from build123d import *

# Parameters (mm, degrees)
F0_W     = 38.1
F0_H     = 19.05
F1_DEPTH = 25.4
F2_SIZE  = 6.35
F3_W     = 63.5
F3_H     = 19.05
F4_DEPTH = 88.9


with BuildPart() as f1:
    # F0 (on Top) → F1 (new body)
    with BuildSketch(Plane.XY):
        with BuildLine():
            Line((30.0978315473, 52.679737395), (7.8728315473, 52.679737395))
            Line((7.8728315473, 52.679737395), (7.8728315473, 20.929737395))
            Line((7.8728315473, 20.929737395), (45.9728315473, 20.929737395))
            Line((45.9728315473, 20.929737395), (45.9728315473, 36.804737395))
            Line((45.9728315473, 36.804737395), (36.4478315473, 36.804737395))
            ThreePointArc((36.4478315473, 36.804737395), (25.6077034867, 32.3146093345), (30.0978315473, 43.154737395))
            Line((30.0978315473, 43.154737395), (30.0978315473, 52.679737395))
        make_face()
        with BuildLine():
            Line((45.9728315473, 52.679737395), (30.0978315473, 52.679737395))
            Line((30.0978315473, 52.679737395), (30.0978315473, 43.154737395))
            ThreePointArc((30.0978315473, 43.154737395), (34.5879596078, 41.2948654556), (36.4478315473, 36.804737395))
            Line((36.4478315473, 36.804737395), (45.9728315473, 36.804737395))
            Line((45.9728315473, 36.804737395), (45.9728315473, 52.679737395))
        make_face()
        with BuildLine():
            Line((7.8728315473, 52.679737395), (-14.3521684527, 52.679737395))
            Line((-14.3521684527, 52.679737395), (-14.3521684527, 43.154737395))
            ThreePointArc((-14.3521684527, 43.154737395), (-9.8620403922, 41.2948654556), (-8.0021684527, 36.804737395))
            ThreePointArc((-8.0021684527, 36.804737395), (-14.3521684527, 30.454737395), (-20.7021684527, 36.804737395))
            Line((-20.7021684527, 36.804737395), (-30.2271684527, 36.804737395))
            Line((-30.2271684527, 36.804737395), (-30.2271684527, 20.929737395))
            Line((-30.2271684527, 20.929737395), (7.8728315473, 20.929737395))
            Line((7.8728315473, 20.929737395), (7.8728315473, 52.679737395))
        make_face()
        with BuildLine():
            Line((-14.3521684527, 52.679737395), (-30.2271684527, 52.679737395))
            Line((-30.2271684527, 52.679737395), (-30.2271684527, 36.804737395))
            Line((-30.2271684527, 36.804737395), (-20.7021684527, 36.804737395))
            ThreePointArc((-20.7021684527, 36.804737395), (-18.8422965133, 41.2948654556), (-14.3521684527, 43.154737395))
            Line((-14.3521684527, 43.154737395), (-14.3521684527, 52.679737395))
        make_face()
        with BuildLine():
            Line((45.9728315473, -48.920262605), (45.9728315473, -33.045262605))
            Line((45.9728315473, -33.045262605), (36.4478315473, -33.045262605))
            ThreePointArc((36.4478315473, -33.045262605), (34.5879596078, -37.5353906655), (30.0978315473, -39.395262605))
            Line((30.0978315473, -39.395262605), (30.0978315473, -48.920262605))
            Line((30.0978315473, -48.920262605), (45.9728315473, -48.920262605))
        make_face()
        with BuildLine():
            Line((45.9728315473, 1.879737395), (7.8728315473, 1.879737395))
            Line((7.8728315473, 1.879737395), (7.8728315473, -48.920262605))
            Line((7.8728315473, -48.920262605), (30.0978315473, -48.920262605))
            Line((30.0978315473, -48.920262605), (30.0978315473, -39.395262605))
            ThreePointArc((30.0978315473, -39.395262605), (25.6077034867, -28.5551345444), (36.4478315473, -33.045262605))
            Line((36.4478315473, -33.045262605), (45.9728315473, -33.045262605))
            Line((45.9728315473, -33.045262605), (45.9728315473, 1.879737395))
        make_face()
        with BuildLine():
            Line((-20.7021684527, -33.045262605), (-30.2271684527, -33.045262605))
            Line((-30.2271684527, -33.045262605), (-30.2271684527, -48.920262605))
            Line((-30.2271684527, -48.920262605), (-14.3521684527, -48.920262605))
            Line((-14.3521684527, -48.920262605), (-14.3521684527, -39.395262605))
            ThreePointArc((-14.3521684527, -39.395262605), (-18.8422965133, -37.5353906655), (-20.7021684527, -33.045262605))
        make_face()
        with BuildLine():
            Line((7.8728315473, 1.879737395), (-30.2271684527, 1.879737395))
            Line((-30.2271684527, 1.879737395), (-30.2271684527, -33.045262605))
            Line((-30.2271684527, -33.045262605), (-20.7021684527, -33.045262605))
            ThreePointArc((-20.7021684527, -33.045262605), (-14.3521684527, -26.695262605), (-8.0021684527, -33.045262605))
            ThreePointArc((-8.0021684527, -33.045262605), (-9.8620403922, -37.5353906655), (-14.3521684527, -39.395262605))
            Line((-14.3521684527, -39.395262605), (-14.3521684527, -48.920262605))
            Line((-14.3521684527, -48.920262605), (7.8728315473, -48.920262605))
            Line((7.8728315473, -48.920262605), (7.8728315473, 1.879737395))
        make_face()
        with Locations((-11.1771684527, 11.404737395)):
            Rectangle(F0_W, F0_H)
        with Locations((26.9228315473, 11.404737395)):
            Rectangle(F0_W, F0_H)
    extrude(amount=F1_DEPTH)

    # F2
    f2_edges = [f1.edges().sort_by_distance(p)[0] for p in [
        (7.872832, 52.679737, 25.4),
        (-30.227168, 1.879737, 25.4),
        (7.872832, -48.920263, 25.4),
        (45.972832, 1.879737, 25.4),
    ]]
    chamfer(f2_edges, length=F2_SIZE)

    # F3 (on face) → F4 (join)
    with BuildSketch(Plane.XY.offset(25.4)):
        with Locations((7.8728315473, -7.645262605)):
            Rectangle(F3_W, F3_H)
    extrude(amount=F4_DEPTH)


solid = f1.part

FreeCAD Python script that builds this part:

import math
import FreeCAD as App
import Part
import Sketcher
from FreeCAD import Vector
Q = App.Units.Quantity


def edges_at(feature, points):
    """Names of the edges that pass closest to the given points."""
    edges = feature.Shape.Edges
    near = lambda p: min(range(len(edges)), key=lambda i: edges[i].distToShape(Part.Vertex(*p))[0])
    return sorted({f"Edge{near(p) + 1}" for p in points})


def add_polygon(sketch, points):
    """Adds a closed chain of lines whose ends are joined by coincident constraints."""
    first, n = sketch.GeometryCount, len(points)
    for a, b in zip(points, points[1:] + points[:1]):
        sketch.addGeometry(Part.LineSegment(App.Vector(*a, 0), App.Vector(*b, 0)), False)
    for i in range(n):
        sketch.addConstraint(Sketcher.Constraint("Coincident", first + i, 2, first + (i + 1) % n, 1))

doc = App.newDocument("Part")
body = doc.addObject("PartDesign::Body", "Body")

sketch1 = body.newObject("Sketcher::SketchObject", "Sketch")
sketch1.AttachmentSupport = (doc.getObject("XY_Plane"), [""])
sketch1.MapMode = "FlatFace"
add_polygon(sketch1, [(46, 53), (-30, 53), (-30, -49), (46, -49)])
sketch1.addGeometry(Part.ArcOfCircle(Part.Circle(Vector(-14, 37, 0), Vector(0, 0, 1), 6), math.radians(0), math.radians(90)), False)
sketch1.addGeometry(Part.ArcOfCircle(Part.Circle(Vector(-14, 37, 0), Vector(0, 0, 1), 6), math.radians(180), math.radians(360)), False)
sketch1.addGeometry(Part.ArcOfCircle(Part.Circle(Vector(-14, 37, 0), Vector(0, 0, 1), 6), math.radians(90), math.radians(180)), False)
sketch1.addGeometry(Part.ArcOfCircle(Part.Circle(Vector(30, 37, 0), Vector(0, 0, 1), 6), math.radians(90), math.radians(360)), False)
sketch1.addGeometry(Part.ArcOfCircle(Part.Circle(Vector(30, 37, 0), Vector(0, 0, 1), 6), math.radians(0), math.radians(90)), False)
sketch1.addGeometry(Part.ArcOfCircle(Part.Circle(Vector(-14, -33, 0), Vector(0, 0, 1), 6), math.radians(180), math.radians(270)), False)
sketch1.addGeometry(Part.ArcOfCircle(Part.Circle(Vector(-14, -33, 0), Vector(0, 0, 1), 6), math.radians(0), math.radians(180)), False)
sketch1.addGeometry(Part.ArcOfCircle(Part.Circle(Vector(-14, -33, 0), Vector(0, 0, 1), 6), math.radians(-90), math.radians(0)), False)
sketch1.addGeometry(Part.ArcOfCircle(Part.Circle(Vector(30, -33, 0), Vector(0, 0, 1), 6), math.radians(-90), math.radians(0)), False)
sketch1.addGeometry(Part.ArcOfCircle(Part.Circle(Vector(30, -33, 0), Vector(0, 0, 1), 6), math.radians(0), math.radians(270)), False)
sketch1.addConstraint([
    Sketcher.Constraint("Tangent", 4, 1, 5, 2),
    Sketcher.Constraint("Tangent", 5, 1, 6, 2),
    Sketcher.Constraint("Tangent", 6, 1, 4, 2),
    Sketcher.Constraint("Tangent", 7, 1, 8, 2),
    Sketcher.Constraint("Coincident", 8, 1, 7, 2),
    Sketcher.Constraint("Tangent", 9, 1, 10, 2),
    Sketcher.Constraint("Tangent", 10, 1, 11, 2),
    Sketcher.Constraint("Tangent", 11, 1, 9, 2),
    Sketcher.Constraint("Tangent", 12, 1, 13, 2),
    Sketcher.Constraint("Coincident", 13, 1, 12, 2),
    Sketcher.Constraint("Horizontal", 0),
    Sketcher.Constraint("Vertical", 1),
    Sketcher.Constraint("Horizontal", 2),
    Sketcher.Constraint("Vertical", 3),
    Sketcher.Constraint("Equal", 6, 7),
    Sketcher.Constraint("Equal", 8, 9),
    Sketcher.Constraint("Equal", 11, 12),
    Sketcher.Constraint("Horizontal", 6, 3, 7, 3),
    Sketcher.Constraint("Horizontal", 11, 3, 12, 3),
    Sketcher.Constraint("Horizontal", 8, 3, 4, 1),
    Sketcher.Constraint("Horizontal", 4, 1, 5, 1),
    Sketcher.Constraint("Horizontal", 5, 1, 8, 1),
    Sketcher.Constraint("Horizontal", 13, 3, 9, 1),
    Sketcher.Constraint("Horizontal", 9, 1, 10, 1),
    Sketcher.Constraint("Horizontal", 10, 1, 13, 1),
    Sketcher.Constraint("Vertical", 6, 3, 9, 3),
    Sketcher.Constraint("Vertical", 8, 3, 12, 3),
    Sketcher.Constraint("Vertical", 11, 3, 6, 1),
    Sketcher.Constraint("Vertical", 13, 3, 7, 1),
    Sketcher.Constraint("Vertical", 6, 1, 11, 1),
    Sketcher.Constraint("Vertical", 7, 1, 12, 1),
    Sketcher.Constraint("DistanceX", 0, 2, 0, 1, Q("3 in")),
    Sketcher.Constraint("DistanceY", 1, 2, 1, 1, Q("4 in")),
    Sketcher.Constraint("Radius", 4, Q("0.25 in")),
    Sketcher.Constraint("DistanceX", 9, 1, 12, 3, Q("2 in")),
    Sketcher.Constraint("DistanceY", 9, 3, 4, 3, Q("2.75 in")),
    Sketcher.Constraint("DistanceX", 0, 2, 4, 3, Q("0.625 in")),
    Sketcher.Constraint("DistanceY", 4, 3, 0, 2, Q("0.625 in")),
    Sketcher.Constraint("DistanceX", 4, 3, -1, 1, Q("14.352168 mm")),
    Sketcher.Constraint("DistanceY", -1, 1, 4, 3, Q("36.804737 mm")),
])
pad1 = body.newObject("PartDesign::Pad", "Pad")
pad1.Profile = sketch1
pad1.Length = Q("1 in")
doc.recompute()

chamfer = body.newObject("PartDesign::Chamfer", "Chamfer")
chamfer.Base = (pad1, edges_at(pad1, [
    (7.873, 52.68, 25.4),
    (-30.227, 1.88, 25.4),
    (7.873, -48.92, 25.4),
    (45.973, 1.88, 25.4),
]))
chamfer.Size = Q("0.25 in")

sketch2 = body.newObject("Sketcher::SketchObject", "Sketch001")
sketch2.AttachmentSupport = (doc.getObject("XY_Plane"), [""])
sketch2.MapMode = "FlatFace"
sketch2.AttachmentOffset = App.Placement(Vector(0, 0, 1 * 25.4), App.Rotation())
add_polygon(sketch2, [(-24, 2), (-24, -17), (40, -17), (40, 2)])
sketch2.addConstraint([
    Sketcher.Constraint("Vertical", 0),
    Sketcher.Constraint("Horizontal", 1),
    Sketcher.Constraint("Vertical", 2),
    Sketcher.Constraint("Horizontal", 3),
    Sketcher.Constraint("DistanceX", 1, 1, 1, 2, Q("2.5 in")),
    Sketcher.Constraint("DistanceY", 0, 2, 0, 1, Q("0.75 in")),
    Sketcher.Constraint("DistanceX", 0, 2, -1, 1, Q("23.877168 mm")),
    Sketcher.Constraint("DistanceY", 0, 2, -1, 1, Q("17.170263 mm")),
])
pad2 = body.newObject("PartDesign::Pad", "Pad001")
pad2.Profile = sketch2
pad2.Length = Q("3.5 in")

doc.recompute()
